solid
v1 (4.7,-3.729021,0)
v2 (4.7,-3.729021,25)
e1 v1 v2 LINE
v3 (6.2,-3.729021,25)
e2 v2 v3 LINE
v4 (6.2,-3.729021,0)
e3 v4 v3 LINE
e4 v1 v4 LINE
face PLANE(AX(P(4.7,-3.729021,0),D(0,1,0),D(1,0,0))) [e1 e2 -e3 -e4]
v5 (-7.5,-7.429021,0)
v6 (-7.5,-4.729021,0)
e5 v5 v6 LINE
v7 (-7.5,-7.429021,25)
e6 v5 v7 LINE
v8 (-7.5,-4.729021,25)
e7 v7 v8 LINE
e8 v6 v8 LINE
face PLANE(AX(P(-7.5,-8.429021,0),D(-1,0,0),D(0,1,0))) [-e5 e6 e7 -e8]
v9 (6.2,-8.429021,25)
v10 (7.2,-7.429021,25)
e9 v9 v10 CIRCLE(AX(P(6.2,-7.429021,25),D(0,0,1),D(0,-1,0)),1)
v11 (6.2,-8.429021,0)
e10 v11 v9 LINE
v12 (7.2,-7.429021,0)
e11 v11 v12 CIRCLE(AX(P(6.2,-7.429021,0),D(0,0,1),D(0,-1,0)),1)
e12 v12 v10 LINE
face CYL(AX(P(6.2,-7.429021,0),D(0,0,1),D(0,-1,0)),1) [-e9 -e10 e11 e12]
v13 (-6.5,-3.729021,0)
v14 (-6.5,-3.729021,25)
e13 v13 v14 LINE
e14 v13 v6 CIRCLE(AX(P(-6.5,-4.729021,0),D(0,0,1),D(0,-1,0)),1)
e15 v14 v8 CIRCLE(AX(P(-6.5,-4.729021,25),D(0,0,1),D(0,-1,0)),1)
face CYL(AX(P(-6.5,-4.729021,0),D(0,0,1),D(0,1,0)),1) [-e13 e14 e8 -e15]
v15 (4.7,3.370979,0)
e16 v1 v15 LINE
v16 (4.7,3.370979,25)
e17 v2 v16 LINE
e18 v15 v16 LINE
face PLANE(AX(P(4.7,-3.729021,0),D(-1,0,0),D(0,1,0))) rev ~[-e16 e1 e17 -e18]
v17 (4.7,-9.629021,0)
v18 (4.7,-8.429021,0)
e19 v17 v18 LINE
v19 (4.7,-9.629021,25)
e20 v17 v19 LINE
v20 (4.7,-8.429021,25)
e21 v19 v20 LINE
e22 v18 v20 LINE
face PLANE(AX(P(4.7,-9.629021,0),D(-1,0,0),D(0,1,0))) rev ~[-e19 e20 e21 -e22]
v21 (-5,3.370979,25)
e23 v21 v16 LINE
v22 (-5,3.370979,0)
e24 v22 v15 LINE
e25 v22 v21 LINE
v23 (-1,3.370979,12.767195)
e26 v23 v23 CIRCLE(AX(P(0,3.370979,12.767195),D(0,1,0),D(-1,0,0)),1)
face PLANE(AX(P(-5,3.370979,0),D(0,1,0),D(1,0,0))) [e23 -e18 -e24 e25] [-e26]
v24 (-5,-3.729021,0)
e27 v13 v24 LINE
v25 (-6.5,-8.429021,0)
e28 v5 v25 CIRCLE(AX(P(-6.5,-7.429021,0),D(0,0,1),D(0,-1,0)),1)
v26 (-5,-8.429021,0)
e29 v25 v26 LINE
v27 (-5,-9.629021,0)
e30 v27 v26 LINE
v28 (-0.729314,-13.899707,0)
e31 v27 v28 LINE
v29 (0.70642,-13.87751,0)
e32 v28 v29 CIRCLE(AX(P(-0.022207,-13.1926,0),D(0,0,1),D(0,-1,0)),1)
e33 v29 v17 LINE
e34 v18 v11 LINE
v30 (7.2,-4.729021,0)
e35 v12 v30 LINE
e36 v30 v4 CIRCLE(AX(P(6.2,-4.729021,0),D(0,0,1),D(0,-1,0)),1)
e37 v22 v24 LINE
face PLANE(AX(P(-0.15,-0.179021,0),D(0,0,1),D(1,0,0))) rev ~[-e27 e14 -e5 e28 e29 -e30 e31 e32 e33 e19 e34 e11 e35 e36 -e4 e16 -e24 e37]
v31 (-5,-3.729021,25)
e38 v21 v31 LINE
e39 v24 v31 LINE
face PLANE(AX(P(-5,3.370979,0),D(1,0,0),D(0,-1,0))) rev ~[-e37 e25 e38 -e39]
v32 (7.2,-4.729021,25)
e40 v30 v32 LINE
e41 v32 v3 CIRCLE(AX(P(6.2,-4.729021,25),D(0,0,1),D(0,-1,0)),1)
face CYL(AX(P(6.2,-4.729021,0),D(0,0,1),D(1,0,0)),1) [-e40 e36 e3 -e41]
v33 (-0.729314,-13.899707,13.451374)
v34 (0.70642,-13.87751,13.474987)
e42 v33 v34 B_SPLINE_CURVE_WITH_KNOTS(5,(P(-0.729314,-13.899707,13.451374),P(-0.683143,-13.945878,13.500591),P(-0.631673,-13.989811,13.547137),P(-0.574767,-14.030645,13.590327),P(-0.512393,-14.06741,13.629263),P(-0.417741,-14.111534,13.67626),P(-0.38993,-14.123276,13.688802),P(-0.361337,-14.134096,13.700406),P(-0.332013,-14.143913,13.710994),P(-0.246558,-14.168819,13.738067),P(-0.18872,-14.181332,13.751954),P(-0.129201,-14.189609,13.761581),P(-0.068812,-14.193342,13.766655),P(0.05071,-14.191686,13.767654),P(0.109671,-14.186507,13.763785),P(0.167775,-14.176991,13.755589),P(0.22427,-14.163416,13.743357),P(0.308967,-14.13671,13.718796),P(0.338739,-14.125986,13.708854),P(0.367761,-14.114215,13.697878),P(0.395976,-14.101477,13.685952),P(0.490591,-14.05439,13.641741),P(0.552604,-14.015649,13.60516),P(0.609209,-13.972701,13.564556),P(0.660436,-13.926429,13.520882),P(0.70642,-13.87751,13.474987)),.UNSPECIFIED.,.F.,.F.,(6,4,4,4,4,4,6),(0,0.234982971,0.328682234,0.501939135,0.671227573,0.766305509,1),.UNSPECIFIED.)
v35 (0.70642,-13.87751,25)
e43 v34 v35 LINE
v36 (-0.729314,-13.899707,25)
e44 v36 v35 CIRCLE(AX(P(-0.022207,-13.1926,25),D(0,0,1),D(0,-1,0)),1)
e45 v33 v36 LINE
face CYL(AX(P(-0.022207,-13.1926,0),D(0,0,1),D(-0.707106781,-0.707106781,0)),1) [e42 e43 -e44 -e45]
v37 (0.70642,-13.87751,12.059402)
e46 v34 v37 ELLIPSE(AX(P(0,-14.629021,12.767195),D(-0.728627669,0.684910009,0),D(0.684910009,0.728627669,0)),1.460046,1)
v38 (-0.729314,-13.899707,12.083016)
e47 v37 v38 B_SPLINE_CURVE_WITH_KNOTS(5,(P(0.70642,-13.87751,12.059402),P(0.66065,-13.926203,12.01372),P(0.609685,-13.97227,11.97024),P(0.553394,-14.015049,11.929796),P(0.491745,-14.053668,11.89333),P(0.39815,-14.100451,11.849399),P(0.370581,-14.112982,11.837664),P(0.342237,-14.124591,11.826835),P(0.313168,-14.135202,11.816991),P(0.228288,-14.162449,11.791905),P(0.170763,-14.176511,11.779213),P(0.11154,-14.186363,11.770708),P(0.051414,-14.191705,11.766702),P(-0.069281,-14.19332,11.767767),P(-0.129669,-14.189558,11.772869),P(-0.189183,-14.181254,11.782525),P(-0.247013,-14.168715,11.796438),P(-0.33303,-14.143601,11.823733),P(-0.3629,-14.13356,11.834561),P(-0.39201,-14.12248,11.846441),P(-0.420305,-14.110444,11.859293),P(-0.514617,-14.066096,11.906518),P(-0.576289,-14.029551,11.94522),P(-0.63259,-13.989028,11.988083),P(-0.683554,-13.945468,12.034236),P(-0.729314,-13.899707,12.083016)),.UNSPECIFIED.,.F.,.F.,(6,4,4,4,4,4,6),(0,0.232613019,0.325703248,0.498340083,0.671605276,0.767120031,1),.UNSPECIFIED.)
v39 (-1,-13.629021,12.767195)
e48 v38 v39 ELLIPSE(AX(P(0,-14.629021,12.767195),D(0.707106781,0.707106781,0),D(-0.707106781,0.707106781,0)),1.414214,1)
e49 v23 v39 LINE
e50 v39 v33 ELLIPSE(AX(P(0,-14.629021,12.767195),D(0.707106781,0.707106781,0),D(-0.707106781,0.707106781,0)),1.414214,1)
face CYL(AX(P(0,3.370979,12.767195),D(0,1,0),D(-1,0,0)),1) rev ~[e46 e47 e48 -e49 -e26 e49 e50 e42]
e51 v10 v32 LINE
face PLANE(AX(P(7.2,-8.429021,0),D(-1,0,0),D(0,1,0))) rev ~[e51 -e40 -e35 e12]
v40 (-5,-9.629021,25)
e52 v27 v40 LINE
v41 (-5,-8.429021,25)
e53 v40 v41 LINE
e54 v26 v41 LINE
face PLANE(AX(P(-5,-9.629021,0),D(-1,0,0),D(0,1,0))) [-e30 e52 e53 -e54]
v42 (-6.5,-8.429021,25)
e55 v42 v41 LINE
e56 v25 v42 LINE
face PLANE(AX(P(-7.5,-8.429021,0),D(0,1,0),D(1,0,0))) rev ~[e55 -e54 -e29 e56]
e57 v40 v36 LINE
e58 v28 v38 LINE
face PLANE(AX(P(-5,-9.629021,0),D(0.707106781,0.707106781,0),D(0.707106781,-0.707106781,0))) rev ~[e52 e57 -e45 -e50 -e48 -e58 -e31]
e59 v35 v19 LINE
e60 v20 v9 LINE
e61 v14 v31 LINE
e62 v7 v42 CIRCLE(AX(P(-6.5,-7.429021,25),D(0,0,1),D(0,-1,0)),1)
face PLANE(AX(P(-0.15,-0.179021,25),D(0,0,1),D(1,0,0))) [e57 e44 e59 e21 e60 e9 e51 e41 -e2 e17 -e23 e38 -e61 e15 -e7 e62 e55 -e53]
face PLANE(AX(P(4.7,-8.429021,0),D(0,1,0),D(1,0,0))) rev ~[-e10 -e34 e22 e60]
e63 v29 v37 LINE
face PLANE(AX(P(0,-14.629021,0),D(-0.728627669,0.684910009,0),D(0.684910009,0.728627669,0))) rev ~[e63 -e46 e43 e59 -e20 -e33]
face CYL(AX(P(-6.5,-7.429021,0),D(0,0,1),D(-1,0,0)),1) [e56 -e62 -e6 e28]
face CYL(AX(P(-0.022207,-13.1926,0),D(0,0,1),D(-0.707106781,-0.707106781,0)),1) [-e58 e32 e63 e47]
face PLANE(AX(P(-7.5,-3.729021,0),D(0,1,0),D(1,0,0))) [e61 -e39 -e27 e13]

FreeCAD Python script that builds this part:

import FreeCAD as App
import Part
import Sketcher

V = App.Vector
Q = App.Units.Quantity


def edges_at(feature, points):
    """Names of the edges that pass closest to the given points."""
    edges = feature.Shape.Edges
    near = lambda p: min(range(len(edges)), key=lambda i: edges[i].distToShape(Part.Vertex(*p))[0])
    return sorted({f"Edge{near(p) + 1}" for p in points})

doc = App.newDocument("Part")
body = doc.addObject("PartDesign::Body", "Body")

# Sketch on XY plane
sketch1 = body.newObject("Sketcher::SketchObject", "Sketch")
sketch1.AttachmentSupport = (doc.getObject("XY_Plane"), [""])
sketch1.MapMode = "FlatFace"
sketch1.addGeometry([
    Part.LineSegment(V(-5, 3.4, 0), V(-5, -3.7, 0)),  # 0
    Part.LineSegment(V(-5, -3.7, 0), V(-7.5, -3.7, 0)),  # 1
    Part.LineSegment(V(-7.5, -3.7, 0), V(-7.5, -8.4, 0)),  # 2
    Part.LineSegment(V(-7.5, -8.4, 0), V(-5, -8.4, 0)),  # 3
    Part.LineSegment(V(-5, -8.4, 0), V(-5, -9.6, 0)),  # 4
    Part.LineSegment(V(-5, -9.6, 0), V(0, -14.6, 0)),  # 5
    Part.LineSegment(V(0, -14.6, 0), V(4.7, -9.6, 0)),  # 6
    Part.LineSegment(V(4.7, -9.6, 0), V(4.7, -8.4, 0)),  # 7
    Part.LineSegment(V(4.7, -8.4, 0), V(7.2, -8.4, 0)),  # 8
    Part.LineSegment(V(7.2, -8.4, 0), V(7.2, -3.7, 0)),  # 9
    Part.LineSegment(V(7.2, -3.7, 0), V(4.7, -3.7, 0)),  # 10
    Part.LineSegment(V(4.7, -3.7, 0), V(4.7, 3.4, 0)),  # 11
    Part.LineSegment(V(4.7, 3.4, 0), V(-5, 3.4, 0)),  # 12
], False)
sketch1.addConstraint([
    Sketcher.Constraint("Coincident", 0, 2, 1, 1),
    Sketcher.Constraint("Coincident", 1, 2, 2, 1),
    Sketcher.Constraint("Coincident", 2, 2, 3, 1),
    Sketcher.Constraint("Coincident", 3, 2, 4, 1),
    Sketcher.Constraint("Coincident", 4, 2, 5, 1),
    Sketcher.Constraint("Coincident", 5, 2, 6, 1),
    Sketcher.Constraint("Coincident", 6, 2, 7, 1),
    Sketcher.Constraint("Coincident", 7, 2, 8, 1),
    Sketcher.Constraint("Coincident", 8, 2, 9, 1),
    Sketcher.Constraint("Coincident", 9, 2, 10, 1),
    Sketcher.Constraint("Coincident", 10, 2, 11, 1),
    Sketcher.Constraint("Coincident", 11, 2, 12, 1),
    Sketcher.Constraint("Coincident", 12, 2, 0, 1),
    Sketcher.Constraint("Vertical", 0),
    Sketcher.Constraint("Horizontal", 1),
    Sketcher.Constraint("Vertical", 2),
    Sketcher.Constraint("Horizontal", 3),
    Sketcher.Constraint("Vertical", 4),
    Sketcher.Constraint("Vertical", 7),
    Sketcher.Constraint("Horizontal", 8),
    Sketcher.Constraint("Vertical", 9),
    Sketcher.Constraint("Horizontal", 10),
    Sketcher.Constraint("Vertical", 11),
    Sketcher.Constraint("Horizontal", 12),
    Sketcher.Constraint("PointOnObject", 5, 2, -2),
    Sketcher.Constraint("Horizontal", 4, 2, 6, 2),
    Sketcher.Constraint("Horizontal", 3, 2, 7, 2),
    Sketcher.Constraint("Horizontal", 1, 2, 9, 2),
    Sketcher.Constraint("Vertical", 0, 2, 3, 2),
    Sketcher.Constraint("Vertical", 7, 2, 10, 2),
    Sketcher.Constraint("Equal", 3, 8),
    Sketcher.Constraint("Angle", 5, Q("-45 deg")),
    Sketcher.Constraint("DistanceX", 1, 2, 1, 1, 2.5),
    Sketcher.Constraint("DistanceX", 12, 2, 12, 1, 9.7),
    Sketcher.Constraint("DistanceY", 0, 2, 0, 1, 7.1),
    Sketcher.Constraint("DistanceY", 2, 2, 2, 1, 4.7),
    Sketcher.Constraint("DistanceY", 4, 2, 4, 1, 1.2),
    Sketcher.Constraint("DistanceX", 0, 2, -1, 1, 5.0),
    Sketcher.Constraint("DistanceY", 0, 2, -1, 1, 3.729021),
])
pad1 = body.newObject("PartDesign::Pad", "Pad")
pad1.Profile = sketch1
pad1.Length = 25
doc.recompute()

fillet = body.newObject("PartDesign::Fillet", "Fillet")
fillet.Base = (pad1, edges_at(pad1, [
    (-7.5, -3.729, 12.5),
    (-7.5, -8.429, 12.5),
    (7.2, -3.729, 12.5),
    (7.2, -8.429, 12.5),
    (0, -14.629, 12.5),
]))
fillet.Radius = 1

# Sketch on XZ plane
sketch2 = body.newObject("Sketcher::SketchObject", "Sketch001")
sketch2.AttachmentSupport = (doc.getObject("XZ_Plane"), [""])
sketch2.MapMode = "FlatFace"
sketch2.AttachmentOffset = App.Placement(V(0, 0, -3.370979), App.Rotation())
sketch2.addGeometry(Part.Circle(V(0, 12.8, 0), V(0, 0, 1), 1), False)
sketch2.addConstraint([
    Sketcher.Constraint("PointOnObject", 0, 3, -2),
    Sketcher.Constraint("Diameter", 0, 2.0),
    Sketcher.Constraint("DistanceY", -1, 1, 0, 3, 12.767195),
])
pocket1 = body.newObject("PartDesign::Pocket", "Pocket")
pocket1.Profile = sketch2
pocket1.Type = "ThroughAll"
pocket1.Reversed = True

# Sketch on XZ plane
sketch3 = body.newObject("Sketcher::SketchObject", "Sketch002")
sketch3.AttachmentSupport = (doc.getObject("XZ_Plane"), [""])
sketch3.MapMode = "FlatFace"
sketch3.AttachmentOffset = App.Placement(V(0, 0, -3.370979), App.Rotation())
sketch3.addGeometry(Part.Circle(V(0, 18.8, 0), V(0, 0, 1), 1), False)
sketch3.addConstraint([
    Sketcher.Constraint("PointOnObject", 0, 3, -2),
    Sketcher.Constraint("Diameter", 0, 2.0),
    Sketcher.Constraint("DistanceY", -1, 1, 0, 3, 18.785524),
])
pocket2 = body.newObject("PartDesign::Pocket", "Pocket001")
pocket2.Profile = sketch3
pocket2.Length = 22.29565

doc.recompute()
